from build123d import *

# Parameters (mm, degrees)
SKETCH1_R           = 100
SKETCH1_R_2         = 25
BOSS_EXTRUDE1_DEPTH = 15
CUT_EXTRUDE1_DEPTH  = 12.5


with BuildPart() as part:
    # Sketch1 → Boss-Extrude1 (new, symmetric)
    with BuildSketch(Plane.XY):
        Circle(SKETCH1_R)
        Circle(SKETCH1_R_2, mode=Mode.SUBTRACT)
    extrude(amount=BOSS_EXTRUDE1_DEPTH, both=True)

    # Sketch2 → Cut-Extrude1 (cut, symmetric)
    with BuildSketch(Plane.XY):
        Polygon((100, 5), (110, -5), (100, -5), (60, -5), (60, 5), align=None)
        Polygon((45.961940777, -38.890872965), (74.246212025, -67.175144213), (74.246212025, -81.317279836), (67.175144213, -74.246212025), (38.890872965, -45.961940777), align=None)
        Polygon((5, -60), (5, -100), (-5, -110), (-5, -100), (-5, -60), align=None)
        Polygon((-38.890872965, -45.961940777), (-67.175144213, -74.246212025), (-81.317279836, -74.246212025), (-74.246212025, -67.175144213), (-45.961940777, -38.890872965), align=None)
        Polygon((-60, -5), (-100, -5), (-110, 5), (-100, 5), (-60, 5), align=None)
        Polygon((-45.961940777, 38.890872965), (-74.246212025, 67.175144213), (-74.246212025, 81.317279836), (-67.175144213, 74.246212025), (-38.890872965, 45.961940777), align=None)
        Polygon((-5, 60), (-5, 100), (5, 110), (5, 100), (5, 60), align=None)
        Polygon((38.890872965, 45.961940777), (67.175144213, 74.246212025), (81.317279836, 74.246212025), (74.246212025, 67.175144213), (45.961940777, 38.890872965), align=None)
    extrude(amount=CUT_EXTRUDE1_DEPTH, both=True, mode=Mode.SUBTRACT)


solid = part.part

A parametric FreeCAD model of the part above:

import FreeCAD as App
import Part
import Sketcher

V = App.Vector

doc = App.newDocument("Part")
body = doc.addObject("PartDesign::Body", "Body")

sketch1 = body.newObject("Sketcher::SketchObject", "Sketch")
sketch1.AttachmentSupport = (doc.getObject("XY_Plane"), [""])
sketch1.MapMode = "FlatFace"
sketch1.addGeometry([
    Part.Circle(V(0, 0, 0), V(0, 0, 1), 100),
    Part.Circle(V(0, 0, 0), V(0, 0, 1), 25),
], False)
sketch1.addConstraint([
    Sketcher.Constraint("Coincident", 0, 3, -1, 1),
    Sketcher.Constraint("Coincident", 1, 3, -1, 1),
    Sketcher.Constraint("Diameter", 0, 200.0),
    Sketcher.Constraint("Diameter", 1, 50.0),
])
pad1 = body.newObject("PartDesign::Pad", "Pad")
pad1.Profile = sketch1
pad1.Length = 30
pad1.Midplane = True

sketch2 = body.newObject("Sketcher::SketchObject", "Sketch001")
sketch2.AttachmentSupport = (doc.getObject("XY_Plane"), [""])
sketch2.MapMode = "FlatFace"
sketch2.addGeometry([
    Part.LineSegment(V(110, -5, 0), V(100, 5, 0)),
    Part.LineSegment(V(100, 5, 0), V(60, 5, 0)),
    Part.LineSegment(V(60, 5, 0), V(60, -5, 0)),
    Part.LineSegment(V(60, -5, 0), V(110, -5, 0)),
    Part.LineSegment(V(74, -67, 0), V(46, -39, 0)),
    Part.LineSegment(V(46, -39, 0), V(39, -46, 0)),
    Part.LineSegment(V(39, -46, 0), V(67, -74, 0)),
    Part.LineSegment(V(67, -74, 0), V(74, -81, 0)),
    Part.LineSegment(V(74, -81, 0), V(74, -67, 0)),
    Part.LineSegment(V(5, -100, 0), V(5, -60, 0)),
    Part.LineSegment(V(5, -60, 0), V(-5, -60, 0)),
    Part.LineSegment(V(-5, -60, 0), V(-5, -110, 0)),
    Part.LineSegment(V(-5, -110, 0), V(5, -100, 0)),
    Part.LineSegment(V(-67, -74, 0), V(-39, -46, 0)),
    Part.LineSegment(V(-39, -46, 0), V(-46, -39, 0)),
    Part.LineSegment(V(-46, -39, 0), V(-74, -67, 0)),
    Part.LineSegment(V(-74, -67, 0), V(-81, -74, 0)),
    Part.LineSegment(V(-81, -74, 0), V(-67, -74, 0)),
    Part.LineSegment(V(-100, -5, 0), V(-60, -5, 0)),
    Part.LineSegment(V(-60, -5, 0), V(-60, 5, 0)),
    Part.LineSegment(V(-60, 5, 0), V(-110, 5, 0)),
    Part.LineSegment(V(-110, 5, 0), V(-100, -5, 0)),
    Part.LineSegment(V(-74, 67, 0), V(-46, 39, 0)),
    Part.LineSegment(V(-46, 39, 0), V(-39, 46, 0)),
    Part.LineSegment(V(-39, 46, 0), V(-67, 74, 0)),
    Part.LineSegment(V(-67, 74, 0), V(-74, 81, 0)),
    Part.LineSegment(V(-74, 81, 0), V(-74, 67, 0)),
    Part.LineSegment(V(-5, 100, 0), V(-5, 60, 0)),
    Part.LineSegment(V(-5, 60, 0), V(5, 60, 0)),
    Part.LineSegment(V(5, 60, 0), V(5, 110, 0)),
    Part.LineSegment(V(5, 110, 0), V(-5, 100, 0)),
    Part.LineSegment(V(67, 74, 0), V(39, 46, 0)),
    Part.LineSegment(V(39, 46, 0), V(46, 39, 0)),
    Part.LineSegment(V(46, 39, 0), V(74, 67, 0)),
    Part.LineSegment(V(74, 67, 0), V(81, 74, 0)),
    Part.LineSegment(V(81, 74, 0), V(67, 74, 0)),
], False)
sketch2.addConstraint([
    Sketcher.Constraint("Coincident", 0, 2, 1, 1),
    Sketcher.Constraint("Coincident", 1, 2, 2, 1),
    Sketcher.Constraint("Coincident", 2, 2, 3, 1),
    Sketcher.Constraint("Coincident", 3, 2, 0, 1),
    Sketcher.Constraint("Coincident", 4, 2, 5, 1),
    Sketcher.Constraint("Coincident", 5, 2, 6, 1),
    Sketcher.Constraint("Coincident", 6, 2, 7, 1),
    Sketcher.Constraint("Coincident", 7, 2, 8, 1),
    Sketcher.Constraint("Coincident", 8, 2, 4, 1),
    Sketcher.Constraint("Coincident", 9, 2, 10, 1),
    Sketcher.Constraint("Coincident", 10, 2, 11, 1),
    Sketcher.Constraint("Coincident", 11, 2, 12, 1),
    Sketcher.Constraint("Coincident", 12, 2, 9, 1),
    Sketcher.Constraint("Coincident", 13, 2, 14, 1),
    Sketcher.Constraint("Coincident", 14, 2, 15, 1),
    Sketcher.Constraint("Coincident", 15, 2, 16, 1),
    Sketcher.Constraint("Coincident", 16, 2, 17, 1),
    Sketcher.Constraint("Coincident", 17, 2, 13, 1),
    Sketcher.Constraint("Coincident", 18, 2, 19, 1),
    Sketcher.Constraint("Coincident", 19, 2, 20, 1),
    Sketcher.Constraint("Coincident", 20, 2, 21, 1),
    Sketcher.Constraint("Coincident", 21, 2, 18, 1),
    Sketcher.Constraint("Coincident", 22, 2, 23, 1),
    Sketcher.Constraint("Coincident", 23, 2, 24, 1),
    Sketcher.Constraint("Coincident", 24, 2, 25, 1),
    Sketcher.Constraint("Coincident", 25, 2, 26, 1),
    Sketcher.Constraint("Coincident", 26, 2, 22, 1),
    Sketcher.Constraint("Coincident", 27, 2, 28, 1),
    Sketcher.Constraint("Coincident", 28, 2, 29, 1),
    Sketcher.Constraint("Coincident", 29, 2, 30, 1),
    Sketcher.Constraint("Coincident", 30, 2, 27, 1),
    Sketcher.Constraint("Coincident", 31, 2, 32, 1),
    Sketcher.Constraint("Coincident", 32, 2, 33, 1),
    Sketcher.Constraint("Coincident", 33, 2, 34, 1),
    Sketcher.Constraint("Coincident", 34, 2, 35, 1),
    Sketcher.Constraint("Coincident", 35, 2, 31, 1),
    Sketcher.Constraint("Horizontal", 1),
    Sketcher.Constraint("Vertical", 2),
    Sketcher.Constraint("Horizontal", 3),
    Sketcher.Constraint("Vertical", 8),
    Sketcher.Constraint("Vertical", 9),
    Sketcher.Constraint("Horizontal", 10),
    Sketcher.Constraint("Vertical", 11),
    Sketcher.Constraint("Horizontal", 17),
    Sketcher.Constraint("Horizontal", 18),
    Sketcher.Constraint("Vertical", 19),
    Sketcher.Constraint("Horizontal", 20),
    Sketcher.Constraint("Vertical", 26),
    Sketcher.Constraint("Vertical", 27),
    Sketcher.Constraint("Horizontal", 28),
    Sketcher.Constraint("Vertical", 29),
    Sketcher.Constraint("Horizontal", 35),
    Sketcher.Constraint("Symmetric", 1, 2, 18, 2, -1, 1),
    Sketcher.Constraint("Symmetric", 3, 2, 20, 2, -1, 1),
    Sketcher.Constraint("Symmetric", 4, 2, 22, 2, -1, 1),
    Sketcher.Constraint("Symmetric", 5, 2, 23, 2, -1, 1),
    Sketcher.Constraint("Symmetric", 6, 2, 24, 2, -1, 1),
    Sketcher.Constraint("Symmetric", 7, 2, 25, 2, -1, 1),
    Sketcher.Constraint("Symmetric", 9, 2, 27, 2, -1, 1),
    Sketcher.Constraint("Symmetric", 11, 2, 29, 2, -1, 1),
    Sketcher.Constraint("Symmetric", 13, 2, 31, 2, -1, 1),
    Sketcher.Constraint("Symmetric", 14, 2, 32, 2, -1, 1),
    Sketcher.Constraint("Symmetric", 15, 2, 33, 2, -1, 1),
    Sketcher.Constraint("Symmetric", 16, 2, 34, 2, -1, 1),
    Sketcher.Constraint("Symmetric", 5, 2, 13, 2, -2),
    Sketcher.Constraint("Symmetric", 4, 2, 14, 2, -2),
    Sketcher.Constraint("Symmetric", 8, 2, 15, 2, -2),
    Sketcher.Constraint("Symmetric", 6, 2, 17, 2, -2),
    Sketcher.Constraint("Parallel", 0, 4),
    Sketcher.Constraint("Perpendicular", 4, 5),
    Sketcher.Constraint("Perpendicular", 5, 6),
    Sketcher.Constraint("Parallel", 6, 7),
    Sketcher.Constraint("Perpendicular", 7, 12),
    Sketcher.Constraint("Parallel", 12, 13),
    Sketcher.Constraint("Parallel", 15, 16),
    Sketcher.Constraint("Perpendicular", 16, 21),
    Sketcher.Constraint("Parallel", 21, 22),
    Sketcher.Constraint("Perpendicular", 25, 30),
    Sketcher.Constraint("Parallel", 30, 31),
    Sketcher.Constraint("Horizontal", 3, 2, 18, 2),
    Sketcher.Constraint("Vertical", 11, 2, 27, 2),
    Sketcher.Constraint("Equal", 28, 2),
    Sketcher.Constraint("Equal", 18, 9),
    Sketcher.Constraint("Equal", 4, 6),
    Sketcher.Constraint("DistanceX", 1, 2, 1, 1, 40.0),
    Sketcher.Constraint("DistanceX", 3, 1, 3, 2, 50.0),
    Sketcher.Constraint("Distance", 4, 40.0),
    Sketcher.Constraint("Distance", 5, 10.0),
    Sketcher.Constraint("DistanceX", -1, 1, 0, 2, 100.0),
    Sketcher.Constraint("DistanceY", 9, 2, -1, 1, 60.0),
    Sketcher.Constraint("DistanceX", -1, 1, 4, 2, 45.961941),
    Sketcher.Constraint("DistanceY", 5, 2, -1, 1, 45.961941),
])
pocket1 = body.newObject("PartDesign::Pocket", "Pocket")
pocket1.Profile = sketch2
pocket1.Length = 25
pocket1.Midplane = True

doc.recompute()
